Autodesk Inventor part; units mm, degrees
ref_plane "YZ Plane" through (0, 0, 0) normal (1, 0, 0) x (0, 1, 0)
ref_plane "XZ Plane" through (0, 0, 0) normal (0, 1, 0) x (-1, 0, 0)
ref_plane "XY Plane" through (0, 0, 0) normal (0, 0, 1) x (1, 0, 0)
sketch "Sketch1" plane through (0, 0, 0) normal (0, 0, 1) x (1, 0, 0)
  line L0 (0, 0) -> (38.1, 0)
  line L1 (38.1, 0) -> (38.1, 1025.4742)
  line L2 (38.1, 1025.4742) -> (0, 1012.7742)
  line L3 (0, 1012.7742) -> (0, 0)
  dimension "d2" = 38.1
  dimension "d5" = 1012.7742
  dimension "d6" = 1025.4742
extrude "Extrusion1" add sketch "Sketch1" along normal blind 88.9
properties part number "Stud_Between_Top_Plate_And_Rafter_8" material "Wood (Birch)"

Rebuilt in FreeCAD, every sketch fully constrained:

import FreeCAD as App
import Part
import Sketcher

V = App.Vector
Q = App.Units.Quantity

doc = App.newDocument("Part")
body = doc.addObject("PartDesign::Body", "Body")

# Sketch on XY plane
sketch1 = body.newObject("Sketcher::SketchObject", "Sketch")
sketch1.AttachmentSupport = (doc.getObject("XY_Plane"), [""])
sketch1.MapMode = "FlatFace"
sketch1.addGeometry([
    Part.LineSegment(V(0, 1012.7742, 0), V(0, 0, 0)),
    Part.LineSegment(V(0, 0, 0), V(38.1, 0, 0)),
    Part.LineSegment(V(38.1, 0, 0), V(38.1, 1025.4742, 0)),
    Part.LineSegment(V(38.1, 1025.4742, 0), V(0, 1012.7742, 0)),
], False)
sketch1.addConstraint([
    Sketcher.Constraint("Coincident", 0, 2, 1, 1),
    Sketcher.Constraint("Coincident", 1, 2, 2, 1),
    Sketcher.Constraint("Coincident", 2, 2, 3, 1),
    Sketcher.Constraint("Coincident", 3, 2, 0, 1),
    Sketcher.Constraint("Vertical", 0),
    Sketcher.Constraint("Horizontal", 1),
    Sketcher.Constraint("Vertical", 2),
    Sketcher.Constraint("Coincident", 0, 2, -1, 1),
    Sketcher.Constraint("DistanceX", 1, 1, 1, 2, Q("1.5 in")),
    Sketcher.Constraint("DistanceY", 0, 2, 0, 1, Q("39.873 in")),
    Sketcher.Constraint("DistanceY", 2, 1, 2, 2, Q("40.373 in")),
])
pad1 = body.newObject("PartDesign::Pad", "Pad")
pad1.Profile = sketch1
pad1.Length = Q("3.5 in")

doc.recompute()
